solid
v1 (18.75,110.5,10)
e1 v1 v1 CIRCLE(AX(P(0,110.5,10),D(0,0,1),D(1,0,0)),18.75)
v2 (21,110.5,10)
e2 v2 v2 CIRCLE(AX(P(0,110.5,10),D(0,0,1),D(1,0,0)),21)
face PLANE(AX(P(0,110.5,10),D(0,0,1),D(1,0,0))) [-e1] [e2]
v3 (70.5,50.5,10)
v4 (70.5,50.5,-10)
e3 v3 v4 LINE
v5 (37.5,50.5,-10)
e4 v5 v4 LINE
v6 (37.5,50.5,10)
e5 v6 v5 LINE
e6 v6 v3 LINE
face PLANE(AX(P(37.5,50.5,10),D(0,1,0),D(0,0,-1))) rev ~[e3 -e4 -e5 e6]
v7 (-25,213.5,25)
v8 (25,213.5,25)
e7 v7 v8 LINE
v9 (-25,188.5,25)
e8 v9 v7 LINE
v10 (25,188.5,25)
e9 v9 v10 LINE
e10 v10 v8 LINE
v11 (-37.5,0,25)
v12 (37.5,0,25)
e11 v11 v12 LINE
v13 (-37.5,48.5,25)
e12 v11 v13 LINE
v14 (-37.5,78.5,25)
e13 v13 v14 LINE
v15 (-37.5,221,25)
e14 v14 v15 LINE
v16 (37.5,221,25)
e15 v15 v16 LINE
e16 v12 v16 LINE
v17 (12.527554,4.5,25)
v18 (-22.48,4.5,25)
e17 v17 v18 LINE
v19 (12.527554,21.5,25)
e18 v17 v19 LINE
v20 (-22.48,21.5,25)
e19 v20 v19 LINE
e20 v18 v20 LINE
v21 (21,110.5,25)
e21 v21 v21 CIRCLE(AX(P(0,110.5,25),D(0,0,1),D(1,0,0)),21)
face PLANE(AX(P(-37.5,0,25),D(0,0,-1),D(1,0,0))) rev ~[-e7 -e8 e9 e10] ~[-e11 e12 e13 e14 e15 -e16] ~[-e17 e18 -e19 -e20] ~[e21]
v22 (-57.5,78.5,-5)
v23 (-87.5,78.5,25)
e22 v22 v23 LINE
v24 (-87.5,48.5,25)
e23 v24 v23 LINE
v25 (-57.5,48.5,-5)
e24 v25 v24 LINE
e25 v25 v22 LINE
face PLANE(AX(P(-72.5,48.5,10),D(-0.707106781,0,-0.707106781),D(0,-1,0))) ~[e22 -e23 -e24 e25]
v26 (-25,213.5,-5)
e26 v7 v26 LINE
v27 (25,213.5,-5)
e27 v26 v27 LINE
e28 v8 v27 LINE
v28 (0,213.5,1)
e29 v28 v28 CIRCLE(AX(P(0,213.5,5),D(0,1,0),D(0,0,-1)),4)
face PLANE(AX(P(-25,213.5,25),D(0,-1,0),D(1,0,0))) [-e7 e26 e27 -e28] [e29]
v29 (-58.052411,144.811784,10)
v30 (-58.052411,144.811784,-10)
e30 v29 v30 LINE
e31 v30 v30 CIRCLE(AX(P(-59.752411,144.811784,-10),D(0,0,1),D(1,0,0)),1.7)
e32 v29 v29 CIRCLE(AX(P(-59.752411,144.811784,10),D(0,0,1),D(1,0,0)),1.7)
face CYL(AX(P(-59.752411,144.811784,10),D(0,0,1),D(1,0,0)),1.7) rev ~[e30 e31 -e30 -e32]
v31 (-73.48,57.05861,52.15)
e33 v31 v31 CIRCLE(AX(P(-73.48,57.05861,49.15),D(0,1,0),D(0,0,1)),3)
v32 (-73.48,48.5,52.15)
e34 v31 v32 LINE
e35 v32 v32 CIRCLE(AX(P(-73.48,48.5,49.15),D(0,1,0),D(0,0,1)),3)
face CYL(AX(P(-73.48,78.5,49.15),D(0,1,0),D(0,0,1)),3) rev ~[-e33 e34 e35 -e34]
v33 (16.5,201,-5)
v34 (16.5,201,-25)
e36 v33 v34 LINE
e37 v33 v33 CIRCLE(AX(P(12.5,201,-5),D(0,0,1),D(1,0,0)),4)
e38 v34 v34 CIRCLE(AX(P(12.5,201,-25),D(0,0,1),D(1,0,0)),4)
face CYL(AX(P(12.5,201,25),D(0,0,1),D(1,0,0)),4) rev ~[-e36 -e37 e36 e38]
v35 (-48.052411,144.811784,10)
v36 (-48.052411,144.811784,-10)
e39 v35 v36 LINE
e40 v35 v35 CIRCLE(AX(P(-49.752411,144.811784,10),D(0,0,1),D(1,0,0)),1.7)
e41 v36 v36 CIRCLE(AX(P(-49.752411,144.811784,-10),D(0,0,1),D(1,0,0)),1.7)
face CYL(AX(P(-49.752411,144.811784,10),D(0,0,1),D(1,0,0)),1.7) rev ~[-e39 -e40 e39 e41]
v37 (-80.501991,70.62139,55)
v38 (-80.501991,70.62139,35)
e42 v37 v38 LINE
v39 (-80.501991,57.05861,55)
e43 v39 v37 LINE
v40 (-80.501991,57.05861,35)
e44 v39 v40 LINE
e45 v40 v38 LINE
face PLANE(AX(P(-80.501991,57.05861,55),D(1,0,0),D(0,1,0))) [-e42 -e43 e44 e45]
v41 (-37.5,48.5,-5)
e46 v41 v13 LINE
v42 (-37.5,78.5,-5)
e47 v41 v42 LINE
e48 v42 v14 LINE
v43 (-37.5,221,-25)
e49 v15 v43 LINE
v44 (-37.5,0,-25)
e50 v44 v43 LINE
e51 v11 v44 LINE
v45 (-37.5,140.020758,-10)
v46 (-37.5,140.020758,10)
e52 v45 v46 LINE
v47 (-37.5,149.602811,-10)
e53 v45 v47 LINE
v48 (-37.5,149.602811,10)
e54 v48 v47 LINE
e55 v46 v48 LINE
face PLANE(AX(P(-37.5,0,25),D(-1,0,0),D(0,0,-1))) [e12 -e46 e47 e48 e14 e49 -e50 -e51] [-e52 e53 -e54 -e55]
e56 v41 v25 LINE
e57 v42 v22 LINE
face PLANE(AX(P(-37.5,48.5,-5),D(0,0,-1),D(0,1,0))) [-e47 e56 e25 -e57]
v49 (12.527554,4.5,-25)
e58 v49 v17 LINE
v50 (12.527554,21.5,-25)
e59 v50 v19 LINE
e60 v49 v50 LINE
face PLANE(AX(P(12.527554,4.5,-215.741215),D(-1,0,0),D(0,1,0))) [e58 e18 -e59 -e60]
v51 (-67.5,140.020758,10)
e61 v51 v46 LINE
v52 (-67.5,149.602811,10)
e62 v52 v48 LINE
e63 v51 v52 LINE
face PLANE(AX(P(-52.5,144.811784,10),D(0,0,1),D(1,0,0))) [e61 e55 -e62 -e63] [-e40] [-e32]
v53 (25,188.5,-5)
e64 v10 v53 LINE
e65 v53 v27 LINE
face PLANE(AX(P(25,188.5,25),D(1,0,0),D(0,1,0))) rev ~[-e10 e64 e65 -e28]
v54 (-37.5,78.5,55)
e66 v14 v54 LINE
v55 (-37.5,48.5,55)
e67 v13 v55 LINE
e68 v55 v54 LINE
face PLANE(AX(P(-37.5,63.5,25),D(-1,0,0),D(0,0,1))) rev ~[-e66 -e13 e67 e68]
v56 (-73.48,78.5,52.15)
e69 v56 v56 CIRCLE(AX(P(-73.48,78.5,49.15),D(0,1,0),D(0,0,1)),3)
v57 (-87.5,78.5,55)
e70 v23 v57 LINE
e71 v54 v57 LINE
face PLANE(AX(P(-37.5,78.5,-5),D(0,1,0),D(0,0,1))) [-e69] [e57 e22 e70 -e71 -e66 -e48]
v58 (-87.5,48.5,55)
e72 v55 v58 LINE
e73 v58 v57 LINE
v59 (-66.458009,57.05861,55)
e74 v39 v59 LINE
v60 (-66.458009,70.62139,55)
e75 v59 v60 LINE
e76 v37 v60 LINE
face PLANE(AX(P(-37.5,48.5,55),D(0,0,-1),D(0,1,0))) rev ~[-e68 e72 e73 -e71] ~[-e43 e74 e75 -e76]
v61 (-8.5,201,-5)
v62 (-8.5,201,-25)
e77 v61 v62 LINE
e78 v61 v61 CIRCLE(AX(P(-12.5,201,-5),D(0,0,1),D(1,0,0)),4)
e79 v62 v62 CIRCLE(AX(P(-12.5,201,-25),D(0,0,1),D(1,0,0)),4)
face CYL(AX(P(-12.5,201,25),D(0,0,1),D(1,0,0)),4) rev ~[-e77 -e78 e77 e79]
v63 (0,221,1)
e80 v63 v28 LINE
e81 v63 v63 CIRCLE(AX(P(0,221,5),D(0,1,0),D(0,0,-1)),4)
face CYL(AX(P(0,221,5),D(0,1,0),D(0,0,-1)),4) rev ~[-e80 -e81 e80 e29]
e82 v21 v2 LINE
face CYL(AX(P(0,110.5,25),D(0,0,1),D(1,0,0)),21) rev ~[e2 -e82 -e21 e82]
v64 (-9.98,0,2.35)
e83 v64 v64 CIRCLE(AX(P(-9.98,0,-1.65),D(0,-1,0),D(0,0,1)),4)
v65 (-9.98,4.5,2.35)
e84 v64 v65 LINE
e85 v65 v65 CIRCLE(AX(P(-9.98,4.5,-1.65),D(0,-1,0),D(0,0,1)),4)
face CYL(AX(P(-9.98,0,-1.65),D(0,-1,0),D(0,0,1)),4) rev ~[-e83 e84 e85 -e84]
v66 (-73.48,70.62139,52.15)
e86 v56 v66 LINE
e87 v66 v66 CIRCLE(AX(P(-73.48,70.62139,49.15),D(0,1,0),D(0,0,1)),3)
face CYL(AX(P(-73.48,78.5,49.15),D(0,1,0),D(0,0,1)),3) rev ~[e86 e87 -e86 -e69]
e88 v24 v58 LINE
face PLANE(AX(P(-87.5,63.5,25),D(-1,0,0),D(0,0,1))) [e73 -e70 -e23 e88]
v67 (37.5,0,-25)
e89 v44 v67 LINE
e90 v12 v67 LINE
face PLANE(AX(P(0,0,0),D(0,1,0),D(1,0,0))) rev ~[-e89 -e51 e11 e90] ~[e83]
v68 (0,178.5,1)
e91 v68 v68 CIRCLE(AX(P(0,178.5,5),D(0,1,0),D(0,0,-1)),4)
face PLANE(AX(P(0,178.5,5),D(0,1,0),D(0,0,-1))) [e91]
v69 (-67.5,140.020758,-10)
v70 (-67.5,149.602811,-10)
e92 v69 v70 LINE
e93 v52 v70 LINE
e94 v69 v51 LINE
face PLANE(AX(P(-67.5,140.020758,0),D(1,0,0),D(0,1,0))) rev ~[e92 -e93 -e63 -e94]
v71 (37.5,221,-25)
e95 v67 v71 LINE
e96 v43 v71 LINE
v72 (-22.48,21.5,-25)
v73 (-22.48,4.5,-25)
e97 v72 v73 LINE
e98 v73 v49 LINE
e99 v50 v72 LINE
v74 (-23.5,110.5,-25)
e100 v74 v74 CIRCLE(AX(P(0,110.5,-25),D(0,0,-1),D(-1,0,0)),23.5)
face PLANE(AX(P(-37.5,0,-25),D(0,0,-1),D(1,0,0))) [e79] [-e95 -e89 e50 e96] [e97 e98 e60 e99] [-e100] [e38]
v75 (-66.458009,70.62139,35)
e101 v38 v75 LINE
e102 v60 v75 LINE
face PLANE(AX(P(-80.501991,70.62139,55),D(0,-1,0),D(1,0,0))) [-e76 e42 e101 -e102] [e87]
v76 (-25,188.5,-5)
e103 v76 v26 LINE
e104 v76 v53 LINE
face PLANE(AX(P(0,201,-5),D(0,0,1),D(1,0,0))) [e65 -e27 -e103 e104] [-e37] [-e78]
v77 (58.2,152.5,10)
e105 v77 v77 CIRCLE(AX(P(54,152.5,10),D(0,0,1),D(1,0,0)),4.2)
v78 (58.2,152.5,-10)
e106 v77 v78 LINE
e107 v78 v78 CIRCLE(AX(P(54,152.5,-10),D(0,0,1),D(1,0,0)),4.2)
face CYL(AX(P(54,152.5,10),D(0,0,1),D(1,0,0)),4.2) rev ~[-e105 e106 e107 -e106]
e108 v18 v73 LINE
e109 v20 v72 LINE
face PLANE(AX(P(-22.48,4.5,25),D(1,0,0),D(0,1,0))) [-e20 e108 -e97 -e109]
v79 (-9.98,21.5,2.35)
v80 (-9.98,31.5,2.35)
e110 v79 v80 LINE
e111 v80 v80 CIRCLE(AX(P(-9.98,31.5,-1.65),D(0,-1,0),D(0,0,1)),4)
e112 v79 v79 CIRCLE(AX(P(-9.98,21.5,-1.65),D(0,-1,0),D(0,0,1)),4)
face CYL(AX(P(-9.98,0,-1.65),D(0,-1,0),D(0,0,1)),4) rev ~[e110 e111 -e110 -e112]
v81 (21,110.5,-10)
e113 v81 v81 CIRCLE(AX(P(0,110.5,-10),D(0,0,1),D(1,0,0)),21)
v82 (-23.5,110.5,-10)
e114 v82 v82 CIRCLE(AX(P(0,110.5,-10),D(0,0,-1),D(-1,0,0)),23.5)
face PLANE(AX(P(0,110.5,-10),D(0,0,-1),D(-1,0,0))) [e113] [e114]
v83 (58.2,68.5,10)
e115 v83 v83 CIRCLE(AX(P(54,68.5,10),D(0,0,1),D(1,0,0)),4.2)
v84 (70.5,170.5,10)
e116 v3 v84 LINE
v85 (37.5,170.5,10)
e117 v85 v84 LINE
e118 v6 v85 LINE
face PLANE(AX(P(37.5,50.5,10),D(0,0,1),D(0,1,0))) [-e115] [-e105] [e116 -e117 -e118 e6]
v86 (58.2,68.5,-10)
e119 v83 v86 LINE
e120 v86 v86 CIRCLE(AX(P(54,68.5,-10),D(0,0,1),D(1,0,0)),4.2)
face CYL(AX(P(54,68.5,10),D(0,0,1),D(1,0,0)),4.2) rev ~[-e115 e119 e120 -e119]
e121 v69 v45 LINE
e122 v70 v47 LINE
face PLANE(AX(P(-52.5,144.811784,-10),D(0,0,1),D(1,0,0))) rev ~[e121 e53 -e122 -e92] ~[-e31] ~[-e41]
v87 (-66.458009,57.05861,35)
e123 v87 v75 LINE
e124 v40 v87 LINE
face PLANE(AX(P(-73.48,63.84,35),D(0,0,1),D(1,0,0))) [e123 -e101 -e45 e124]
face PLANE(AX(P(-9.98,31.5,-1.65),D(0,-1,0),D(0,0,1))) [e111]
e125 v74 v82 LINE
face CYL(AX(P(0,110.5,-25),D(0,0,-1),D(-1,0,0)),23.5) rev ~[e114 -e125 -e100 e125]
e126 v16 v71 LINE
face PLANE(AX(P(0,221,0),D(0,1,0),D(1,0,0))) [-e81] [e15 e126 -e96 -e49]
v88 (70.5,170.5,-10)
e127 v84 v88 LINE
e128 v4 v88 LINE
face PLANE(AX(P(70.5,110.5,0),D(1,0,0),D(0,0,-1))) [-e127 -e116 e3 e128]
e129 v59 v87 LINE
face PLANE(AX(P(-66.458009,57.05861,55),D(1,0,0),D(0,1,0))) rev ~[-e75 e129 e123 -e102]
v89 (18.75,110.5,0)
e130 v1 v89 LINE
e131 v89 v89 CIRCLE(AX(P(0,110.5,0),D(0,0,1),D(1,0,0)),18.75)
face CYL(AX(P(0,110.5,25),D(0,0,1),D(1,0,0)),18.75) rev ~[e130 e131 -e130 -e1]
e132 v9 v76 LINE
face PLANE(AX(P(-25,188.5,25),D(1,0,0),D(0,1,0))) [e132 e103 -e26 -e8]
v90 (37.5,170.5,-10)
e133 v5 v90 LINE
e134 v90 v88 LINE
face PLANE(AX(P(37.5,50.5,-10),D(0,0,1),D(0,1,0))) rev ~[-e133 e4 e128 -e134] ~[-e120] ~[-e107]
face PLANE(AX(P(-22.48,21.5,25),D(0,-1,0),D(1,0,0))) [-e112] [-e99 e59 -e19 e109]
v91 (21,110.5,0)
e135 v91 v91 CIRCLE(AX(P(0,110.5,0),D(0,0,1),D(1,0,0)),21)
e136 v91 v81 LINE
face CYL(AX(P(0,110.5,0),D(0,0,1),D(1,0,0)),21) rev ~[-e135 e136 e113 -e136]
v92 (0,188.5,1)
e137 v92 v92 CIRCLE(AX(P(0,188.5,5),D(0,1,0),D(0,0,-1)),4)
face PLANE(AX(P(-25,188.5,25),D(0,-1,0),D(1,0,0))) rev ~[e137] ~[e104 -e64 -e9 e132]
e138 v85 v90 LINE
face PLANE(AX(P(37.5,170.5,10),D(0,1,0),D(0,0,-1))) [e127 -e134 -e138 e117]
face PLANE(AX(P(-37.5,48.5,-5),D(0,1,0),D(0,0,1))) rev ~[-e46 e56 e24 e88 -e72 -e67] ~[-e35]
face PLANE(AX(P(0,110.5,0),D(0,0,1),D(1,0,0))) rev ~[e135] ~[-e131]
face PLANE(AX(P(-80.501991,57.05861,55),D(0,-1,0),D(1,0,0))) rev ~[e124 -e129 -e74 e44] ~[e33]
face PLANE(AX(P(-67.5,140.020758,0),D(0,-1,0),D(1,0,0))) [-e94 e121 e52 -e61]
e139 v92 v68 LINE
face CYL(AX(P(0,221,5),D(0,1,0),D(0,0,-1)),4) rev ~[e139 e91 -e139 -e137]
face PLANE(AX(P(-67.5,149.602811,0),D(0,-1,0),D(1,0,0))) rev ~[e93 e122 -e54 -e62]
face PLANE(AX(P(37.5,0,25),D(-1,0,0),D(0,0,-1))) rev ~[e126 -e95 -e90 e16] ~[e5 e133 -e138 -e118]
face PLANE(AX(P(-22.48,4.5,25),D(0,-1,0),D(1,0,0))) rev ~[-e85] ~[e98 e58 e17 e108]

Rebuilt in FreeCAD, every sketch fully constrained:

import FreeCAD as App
import Part
import Sketcher
from FreeCAD import Vector


def edges_at(feature, points):
    """Names of the edges that pass closest to the given points."""
    edges = feature.Shape.Edges
    near = lambda p: min(range(len(edges)), key=lambda i: edges[i].distToShape(Part.Vertex(*p))[0])
    return sorted({f"Edge{near(p) + 1}" for p in points})

doc = App.newDocument("Part")
params = doc.addObject("Spreadsheet::Sheet", "Params")
for row, (alias, value) in enumerate([
    ("sketch1_width", "75 mm"),
    ("sketch1_height", "50 mm"),
    ("pad1_length", "221 mm"),
    ("sketch2_diameter", "37.5 mm"),
    ("sketch3_diameter", "42 mm"),
    ("pocket2_length", "15 mm"),
    ("sketch4_diameter", "47 mm"),
    ("pocket3_length", "15 mm"),
    ("sketch5_width", "120 mm"),
    ("sketch5_height", "20 mm"),
    ("pad2_length", "33 mm"),
    ("sketch6_width", "30 mm"),
    ("pad3_length", "20 mm"),
    ("sketch7_width", "30 mm"),
    ("sketch7_height", "60 mm"),
    ("pad4_length", "50 mm"),
    ("sketch8_diameter", "8.4 mm"),
    ("sketch9_diameter", "8 mm"),
    ("sketch10_width", "50 mm"),
    ("sketch10_height", "25 mm"),
    ("pocket6_length", "30 mm"),
    ("sketch11_diameter", "8 mm"),
    ("pocket7_length", "42.5 mm"),
    ("sketch12_width", "25 mm"),
    ("sketch12_height", "12 mm"),
    ("sketch13_width", "25 mm"),
    ("sketch13_height", "5 mm"),
    ("sketch14_height", "17 mm"),
    ("chamfer_size", "30 mm"),
    ("pocket11_length", "20 mm"),
    ("sketch16_diameter", "6 mm"),
    ("sketch17_diameter", "3.4 mm"),
    ("pocket13_length", "20 mm"),
    ("sketch18_diameter", "8 mm"),
    ("pocket14_length", "31.5 mm"),
    ("sketch19_diameter", "42 mm"),
    ("pocket15_length", "10 mm"),
], start=1):
    params.set(f"A{row}", alias)
    params.set(f"B{row}", "=" + value)
    params.setAlias(f"B{row}", alias)

body = doc.addObject("PartDesign::Body", "Body")

# Sketch on XZ plane
sketch1 = body.newObject("Sketcher::SketchObject", "Sketch")
sketch1.AttachmentSupport = (doc.getObject("XZ_Plane"), [""])
sketch1.MapMode = "FlatFace"
sketch1.addGeometry([
    Part.LineSegment(Vector(-38, -25, 0), Vector(-38, 25, 0)),
    Part.LineSegment(Vector(-38, 25, 0), Vector(38, 25, 0)),
    Part.LineSegment(Vector(38, 25, 0), Vector(38, -25, 0)),
    Part.LineSegment(Vector(38, -25, 0), Vector(-38, -25, 0)),
], False)
sketch1.addConstraint([
    Sketcher.Constraint("Coincident", 0, 2, 1, 1),
    Sketcher.Constraint("Coincident", 1, 2, 2, 1),
    Sketcher.Constraint("Coincident", 2, 2, 3, 1),
    Sketcher.Constraint("Coincident", 3, 2, 0, 1),
    Sketcher.Constraint("Vertical", 0),
    Sketcher.Constraint("Horizontal", 1),
    Sketcher.Constraint("Vertical", 2),
    Sketcher.Constraint("Horizontal", 3),
    Sketcher.Constraint("Symmetric", 0, 2, 2, 2, -1, 1),
    Sketcher.Constraint("DistanceX", 1, 1, 1, 2, 75.0),
    Sketcher.Constraint("DistanceY", 0, 1, 0, 2, 50.0),
])
sketch1.setExpression("Constraints[9]", "Params.sketch1_width")
sketch1.setExpression("Constraints[10]", "Params.sketch1_height")
pad1 = body.newObject("PartDesign::Pad", "Pad")
pad1.Profile = sketch1
pad1.setExpression("Length", "Params.pad1_length")
pad1.Reversed = True

# Sketch on XY plane
sketch2 = body.newObject("Sketcher::SketchObject", "Sketch001")
sketch2.AttachmentSupport = (doc.getObject("XY_Plane"), [""])
sketch2.MapMode = "FlatFace"
sketch2.AttachmentOffset = App.Placement(Vector(0, 0, 25), App.Rotation())
sketch2.addGeometry(Part.Circle(Vector(0, 110, 0), Vector(0, 0, 1), 19), False)
sketch2.addConstraint([
    Sketcher.Constraint("PointOnObject", 0, 3, -2),
    Sketcher.Constraint("Diameter", 0, 37.5),
    Sketcher.Constraint("DistanceY", -1, 1, 0, 3, 110.5),
])
sketch2.setExpression("Constraints[1]", "Params.sketch2_diameter")
pocket1 = body.newObject("PartDesign::Pocket", "Pocket")
pocket1.Profile = sketch2
pocket1.Type = "ThroughAll"

# Sketch on XY plane
sketch3 = body.newObject("Sketcher::SketchObject", "Sketch002")
sketch3.AttachmentSupport = (doc.getObject("XY_Plane"), [""])
sketch3.MapMode = "FlatFace"
sketch3.AttachmentOffset = App.Placement(Vector(0, 0, 25), App.Rotation())
sketch3.addGeometry(Part.Circle(Vector(0, 110, 0), Vector(0, 0, 1), 21), False)
sketch3.addConstraint([
    Sketcher.Constraint("PointOnObject", 0, 3, -2),
    Sketcher.Constraint("Diameter", 0, 42.0),
    Sketcher.Constraint("DistanceY", -1, 1, 0, 3, 110.5),
])
sketch3.setExpression("Constraints[1]", "Params.sketch3_diameter")
pocket2 = body.newObject("PartDesign::Pocket", "Pocket001")
pocket2.Profile = sketch3
pocket2.setExpression("Length", "Params.pocket2_length")

# Sketch on XY plane
sketch4 = body.newObject("Sketcher::SketchObject", "Sketch003")
sketch4.AttachmentSupport = (doc.getObject("XY_Plane"), [""])
sketch4.MapMode = "FlatFace"
sketch4.AttachmentOffset = App.Placement(Vector(0, 0, -25), App.Rotation())
sketch4.addGeometry(Part.Circle(Vector(0, 110, 0), Vector(0, 0, 1), 24), False)
sketch4.addConstraint([
    Sketcher.Constraint("PointOnObject", 0, 3, -2),
    Sketcher.Constraint("Diameter", 0, 47.0),
    Sketcher.Constraint("DistanceY", -1, 1, 0, 3, 110.5),
])
sketch4.setExpression("Constraints[1]", "Params.sketch4_diameter")
pocket3 = body.newObject("PartDesign::Pocket", "Pocket002")
pocket3.Profile = sketch4
pocket3.setExpression("Length", "Params.pocket3_length")
pocket3.Reversed = True

# Sketch on YZ plane
sketch5 = body.newObject("Sketcher::SketchObject", "Sketch004")
sketch5.AttachmentSupport = (doc.getObject("YZ_Plane"), [""])
sketch5.MapMode = "FlatFace"
sketch5.AttachmentOffset = App.Placement(Vector(0, 0, 37.5), App.Rotation())
sketch5.addGeometry([
    Part.LineSegment(Vector(170, 10, 0), Vector(50, 10, 0)),
    Part.LineSegment(Vector(50, 10, 0), Vector(50, -10, 0)),
    Part.LineSegment(Vector(50, -10, 0), Vector(170, -10, 0)),
    Part.LineSegment(Vector(170, -10, 0), Vector(170, 10, 0)),
], False)
sketch5.addConstraint([
    Sketcher.Constraint("Coincident", 0, 2, 1, 1),
    Sketcher.Constraint("Coincident", 1, 2, 2, 1),
    Sketcher.Constraint("Coincident", 2, 2, 3, 1),
    Sketcher.Constraint("Coincident", 3, 2, 0, 1),
    Sketcher.Constraint("Horizontal", 0),
    Sketcher.Constraint("Vertical", 1),
    Sketcher.Constraint("Horizontal", 2),
    Sketcher.Constraint("Vertical", 3),
    Sketcher.Constraint("DistanceX", 0, 2, 0, 1, 120.0),
    Sketcher.Constraint("DistanceY", 1, 2, 1, 1, 20.0),
    Sketcher.Constraint("DistanceY", -1, 1, 0, 2, 10.0),
    Sketcher.Constraint("DistanceX", -1, 1, 0, 2, 50.5),
])
sketch5.setExpression("Constraints[8]", "Params.sketch5_width")
sketch5.setExpression("Constraints[9]", "Params.sketch5_height")
pad2 = body.newObject("PartDesign::Pad", "Pad001")
pad2.Profile = sketch5
pad2.setExpression("Length", "Params.pad2_length")

# Sketch on XY plane
sketch6 = body.newObject("Sketcher::SketchObject", "Sketch005")
sketch6.AttachmentSupport = (doc.getObject("XY_Plane"), [""])
sketch6.MapMode = "FlatFace"
sketch6.addGeometry([
    Part.LineSegment(Vector(-68, 150, 0), Vector(-68, 140, 0)),
    Part.LineSegment(Vector(-68, 140, 0), Vector(-38, 140, 0)),
    Part.LineSegment(Vector(-38, 140, 0), Vector(-38, 150, 0)),
    Part.LineSegment(Vector(-38, 150, 0), Vector(-68, 150, 0)),
], False)
sketch6.addConstraint([
    Sketcher.Constraint("Coincident", 0, 2, 1, 1),
    Sketcher.Constraint("Coincident", 1, 2, 2, 1),
    Sketcher.Constraint("Coincident", 2, 2, 3, 1),
    Sketcher.Constraint("Coincident", 3, 2, 0, 1),
    Sketcher.Constraint("Vertical", 0),
    Sketcher.Constraint("Horizontal", 1),
    Sketcher.Constraint("Vertical", 2),
    Sketcher.Constraint("Horizontal", 3),
    Sketcher.Constraint("DistanceX", 1, 1, 1, 2, 30.0),
    Sketcher.Constraint("DistanceX", 0, 2, -1, 1, 67.5),
    Sketcher.Constraint("DistanceY", 0, 2, 0, 1, 9.582053),
    Sketcher.Constraint("DistanceY", -1, 1, 2, 2, 149.602811),
])
sketch6.setExpression("Constraints[8]", "Params.sketch6_width")
pad3 = body.newObject("PartDesign::Pad", "Pad002")
pad3.Profile = sketch6
pad3.setExpression("Length", "Params.pad3_length")
pad3.Midplane = True

# Sketch on YZ plane
sketch7 = body.newObject("Sketcher::SketchObject", "Sketch006")
sketch7.AttachmentSupport = (doc.getObject("YZ_Plane"), [""])
sketch7.MapMode = "FlatFace"
sketch7.AttachmentOffset = App.Placement(Vector(0, 0, -37.5), App.Rotation())
sketch7.addGeometry([
    Part.LineSegment(Vector(78, -5, 0), Vector(48, -5, 0)),
    Part.LineSegment(Vector(48, -5, 0), Vector(48, 55, 0)),
    Part.LineSegment(Vector(48, 55, 0), Vector(78, 55, 0)),
    Part.LineSegment(Vector(78, 55, 0), Vector(78, -5, 0)),
], False)
sketch7.addConstraint([
    Sketcher.Constraint("Coincident", 0, 2, 1, 1),
    Sketcher.Constraint("Coincident", 1, 2, 2, 1),
    Sketcher.Constraint("Coincident", 2, 2, 3, 1),
    Sketcher.Constraint("Coincident", 3, 2, 0, 1),
    Sketcher.Constraint("Horizontal", 0),
    Sketcher.Constraint("Vertical", 1),
    Sketcher.Constraint("Horizontal", 2),
    Sketcher.Constraint("Vertical", 3),
    Sketcher.Constraint("DistanceX", 0, 2, 0, 1, 30.0),
    Sketcher.Constraint("DistanceY", 1, 1, 1, 2, 60.0),
    Sketcher.Constraint("DistanceY", 0, 2, -1, 1, 5.0),
    Sketcher.Constraint("DistanceX", -1, 1, 0, 2, 48.5),
])
sketch7.setExpression("Constraints[8]", "Params.sketch7_width")
sketch7.setExpression("Constraints[9]", "Params.sketch7_height")
pad4 = body.newObject("PartDesign::Pad", "Pad003")
pad4.Profile = sketch7
pad4.setExpression("Length", "Params.pad4_length")
pad4.Reversed = True

# Sketch on XY plane
sketch8 = body.newObject("Sketcher::SketchObject", "Sketch007")
sketch8.AttachmentSupport = (doc.getObject("XY_Plane"), [""])
sketch8.MapMode = "FlatFace"
sketch8.AttachmentOffset = App.Placement(Vector(0, 0, 10), App.Rotation())
sketch8.addGeometry([
    Part.Circle(Vector(54, 152.5, 0), Vector(0, 0, 1), 4.2),
    Part.Circle(Vector(54, 68.5, 0), Vector(0, 0, 1), 4.2),
], False)
sketch8.addConstraint([
    Sketcher.Constraint("Equal", 0, 1),
    Sketcher.Constraint("Vertical", 0, 3, 1, 3),
    Sketcher.Constraint("Diameter", 0, 8.4),
    Sketcher.Constraint("DistanceX", -1, 1, 0, 3, 54.0),
    Sketcher.Constraint("DistanceY", 1, 3, 0, 3, 84.0),
    Sketcher.Constraint("DistanceY", -1, 1, 0, 3, 152.5),
])
sketch8.setExpression("Constraints[2]", "Params.sketch8_diameter")
pocket4 = body.newObject("PartDesign::Pocket", "Pocket003")
pocket4.Profile = sketch8
pocket4.Type = "ThroughAll"

# Sketch on XY plane
sketch9 = body.newObject("Sketcher::SketchObject", "Sketch008")
sketch9.AttachmentSupport = (doc.getObject("XY_Plane"), [""])
sketch9.MapMode = "FlatFace"
sketch9.AttachmentOffset = App.Placement(Vector(0, 0, 25), App.Rotation())
sketch9.addGeometry([
    Part.Circle(Vector(-12.5, 201, 0), Vector(0, 0, 1), 4),
    Part.Circle(Vector(12.5, 201, 0), Vector(0, 0, 1), 4),
], False)
sketch9.addConstraint([
    Sketcher.Constraint("Equal", 0, 1),
    Sketcher.Constraint("Symmetric", 0, 3, 1, 3, -2),
    Sketcher.Constraint("Diameter", 0, 8.0),
    Sketcher.Constraint("DistanceY", -1, 1, 0, 3, 201.0),
    Sketcher.Constraint("DistanceX", 0, 3, 1, 3, 25.0),
])
sketch9.setExpression("Constraints[2]", "Params.sketch9_diameter")
pocket5 = body.newObject("PartDesign::Pocket", "Pocket004")
pocket5.Profile = sketch9
pocket5.Type = "ThroughAll"

# Sketch on XY plane
sketch10 = body.newObject("Sketcher::SketchObject", "Sketch009")
sketch10.AttachmentSupport = (doc.getObject("XY_Plane"), [""])
sketch10.MapMode = "FlatFace"
sketch10.AttachmentOffset = App.Placement(Vector(0, 0, 25), App.Rotation())
sketch10.addGeometry([
    Part.LineSegment(Vector(-25, 214, 0), Vector(-25, 188, 0)),
    Part.LineSegment(Vector(-25, 188, 0), Vector(25, 188, 0)),
    Part.LineSegment(Vector(25, 188, 0), Vector(25, 214, 0)),
    Part.LineSegment(Vector(25, 214, 0), Vector(-25, 214, 0)),
], False)
sketch10.addConstraint([
    Sketcher.Constraint("Coincident", 0, 2, 1, 1),
    Sketcher.Constraint("Coincident", 1, 2, 2, 1),
    Sketcher.Constraint("Coincident", 2, 2, 3, 1),
    Sketcher.Constraint("Coincident", 3, 2, 0, 1),
    Sketcher.Constraint("Vertical", 0),
    Sketcher.Constraint("Horizontal", 1),
    Sketcher.Constraint("Vertical", 2),
    Sketcher.Constraint("Horizontal", 3),
    Sketcher.Constraint("DistanceX", 1, 1, 1, 2, 50.0),
    Sketcher.Constraint("DistanceY", 0, 2, 0, 1, 25.0),
    Sketcher.Constraint("DistanceX", 0, 2, -1, 1, 25.0),
    Sketcher.Constraint("DistanceY", -1, 1, 0, 2, 188.5),
])
sketch10.setExpression("Constraints[8]", "Params.sketch10_width")
sketch10.setExpression("Constraints[9]", "Params.sketch10_height")
pocket6 = body.newObject("PartDesign::Pocket", "Pocket005")
pocket6.Profile = sketch10
pocket6.setExpression("Length", "Params.pocket6_length")

# Sketch on XZ plane
sketch11 = body.newObject("Sketcher::SketchObject", "Sketch010")
sketch11.AttachmentSupport = (doc.getObject("XZ_Plane"), [""])
sketch11.MapMode = "FlatFace"
sketch11.AttachmentOffset = App.Placement(Vector(0, 0, -221), App.Rotation())
sketch11.addGeometry(Part.Circle(Vector(0, 5, 0), Vector(0, 0, 1), 4), False)
sketch11.addConstraint([
    Sketcher.Constraint("PointOnObject", 0, 3, -2),
    Sketcher.Constraint("Diameter", 0, 8.0),
    Sketcher.Constraint("DistanceY", -1, 1, 0, 3, 5.0),
])
sketch11.setExpression("Constraints[1]", "Params.sketch11_diameter")
pocket7 = body.newObject("PartDesign::Pocket", "Pocket006")
pocket7.Profile = sketch11
pocket7.setExpression("Length", "Params.pocket7_length")
pocket7.Reversed = True

# Sketch on XY plane
sketch12 = body.newObject("Sketcher::SketchObject", "Sketch011")
sketch12.AttachmentSupport = (doc.getObject("XY_Plane"), [""])
sketch12.MapMode = "FlatFace"
sketch12.AttachmentOffset = App.Placement(Vector(0, 0, 25), App.Rotation())
sketch12.addGeometry([
    Part.LineSegment(Vector(-22, 16, 0), Vector(-22, 4, 0)),
    Part.LineSegment(Vector(-22, 4, 0), Vector(3, 4, 0)),
    Part.LineSegment(Vector(3, 4, 0), Vector(3, 16, 0)),
    Part.LineSegment(Vector(3, 16, 0), Vector(-22, 16, 0)),
], False)
sketch12.addConstraint([
    Sketcher.Constraint("Coincident", 0, 2, 1, 1),
    Sketcher.Constraint("Coincident", 1, 2, 2, 1),
    Sketcher.Constraint("Coincident", 2, 2, 3, 1),
    Sketcher.Constraint("Coincident", 3, 2, 0, 1),
    Sketcher.Constraint("Vertical", 0),
    Sketcher.Constraint("Horizontal", 1),
    Sketcher.Constraint("Vertical", 2),
    Sketcher.Constraint("Horizontal", 3),
    Sketcher.Constraint("DistanceX", 1, 1, 1, 2, 25.0),
    Sketcher.Constraint("DistanceY", 0, 2, 0, 1, 12.0),
    Sketcher.Constraint("DistanceY", -1, 1, 0, 2, 4.5),
    Sketcher.Constraint("DistanceX", 0, 2, -1, 1, 22.48),
])
sketch12.setExpression("Constraints[8]", "Params.sketch12_width")
sketch12.setExpression("Constraints[9]", "Params.sketch12_height")
pocket8 = body.newObject("PartDesign::Pocket", "Pocket007")
pocket8.Profile = sketch12
pocket8.Type = "ThroughAll"

# Sketch on XY plane
sketch13 = body.newObject("Sketcher::SketchObject", "Sketch012")
sketch13.AttachmentSupport = (doc.getObject("XY_Plane"), [""])
sketch13.MapMode = "FlatFace"
sketch13.AttachmentOffset = App.Placement(Vector(0, 0, 25), App.Rotation())
sketch13.addGeometry([
    Part.LineSegment(Vector(-22, 22, 0), Vector(-22, 16, 0)),
    Part.LineSegment(Vector(-22, 16, 0), Vector(3, 16, 0)),
    Part.LineSegment(Vector(3, 16, 0), Vector(3, 22, 0)),
    Part.LineSegment(Vector(3, 22, 0), Vector(-22, 22, 0)),
], False)
sketch13.addConstraint([
    Sketcher.Constraint("Coincident", 0, 2, 1, 1),
    Sketcher.Constraint("Coincident", 1, 2, 2, 1),
    Sketcher.Constraint("Coincident", 2, 2, 3, 1),
    Sketcher.Constraint("Coincident", 3, 2, 0, 1),
    Sketcher.Constraint("Vertical", 0),
    Sketcher.Constraint("Horizontal", 1),
    Sketcher.Constraint("Vertical", 2),
    Sketcher.Constraint("Horizontal", 3),
    Sketcher.Constraint("DistanceX", 1, 1, 1, 2, 25.0),
    Sketcher.Constraint("DistanceY", 0, 2, 0, 1, 5.0),
    Sketcher.Constraint("DistanceY", -1, 1, 0, 2, 16.5),
    Sketcher.Constraint("DistanceX", 0, 2, -1, 1, 22.48),
])
sketch13.setExpression("Constraints[8]", "Params.sketch13_width")
sketch13.setExpression("Constraints[9]", "Params.sketch13_height")
pocket9 = body.newObject("PartDesign::Pocket", "Pocket008")
pocket9.Profile = sketch13
pocket9.Type = "ThroughAll"

# Sketch on XY plane
sketch14 = body.newObject("Sketcher::SketchObject", "Sketch013")
sketch14.AttachmentSupport = (doc.getObject("XY_Plane"), [""])
sketch14.MapMode = "FlatFace"
sketch14.AttachmentOffset = App.Placement(Vector(0, 0, 25), App.Rotation())
sketch14.addGeometry([
    Part.LineSegment(Vector(3, 22, 0), Vector(3, 4, 0)),
    Part.LineSegment(Vector(3, 4, 0), Vector(13, 4, 0)),
    Part.LineSegment(Vector(13, 4, 0), Vector(13, 22, 0)),
    Part.LineSegment(Vector(13, 22, 0), Vector(3, 22, 0)),
], False)
sketch14.addConstraint([
    Sketcher.Constraint("Coincident", 0, 2, 1, 1),
    Sketcher.Constraint("Coincident", 1, 2, 2, 1),
    Sketcher.Constraint("Coincident", 2, 2, 3, 1),
    Sketcher.Constraint("Coincident", 3, 2, 0, 1),
    Sketcher.Constraint("Vertical", 0),
    Sketcher.Constraint("Horizontal", 1),
    Sketcher.Constraint("Vertical", 2),
    Sketcher.Constraint("Horizontal", 3),
    Sketcher.Constraint("DistanceY", 0, 2, 0, 1, 17.0),
    Sketcher.Constraint("DistanceY", -1, 1, 0, 2, 4.5),
    Sketcher.Constraint("DistanceX", -1, 1, 0, 2, 2.52),
    Sketcher.Constraint("DistanceX", 1, 1, 1, 2, 10.007554),
])
sketch14.setExpression("Constraints[8]", "Params.sketch14_height")
pocket10 = body.newObject("PartDesign::Pocket", "Pocket009")
pocket10.Profile = sketch14
pocket10.Type = "ThroughAll"
pocket10.Midplane = True
doc.recompute()

chamfer = body.newObject("PartDesign::Chamfer", "Chamfer")
chamfer.Base = (pocket10, edges_at(pocket10, [(-87.5, 63.5, -5)]))
chamfer.setExpression("Size", "Params.chamfer_size")

# Sketch on XY plane
sketch15 = body.newObject("Sketcher::SketchObject", "Sketch014")
sketch15.AttachmentSupport = (doc.getObject("XY_Plane"), [""])
sketch15.MapMode = "FlatFace"
sketch15.AttachmentOffset = App.Placement(Vector(0, 0, 55), App.Rotation())
sketch15.addGeometry([
    Part.LineSegment(Vector(-81, 71, 0), Vector(-81, 57, 0)),
    Part.LineSegment(Vector(-81, 57, 0), Vector(-66, 57, 0)),
    Part.LineSegment(Vector(-66, 57, 0), Vector(-66, 71, 0)),
    Part.LineSegment(Vector(-66, 71, 0), Vector(-81, 71, 0)),
], False)
sketch15.addConstraint([
    Sketcher.Constraint("Coincident", 0, 2, 1, 1),
    Sketcher.Constraint("Coincident", 1, 2, 2, 1),
    Sketcher.Constraint("Coincident", 2, 2, 3, 1),
    Sketcher.Constraint("Coincident", 3, 2, 0, 1),
    Sketcher.Constraint("Vertical", 0),
    Sketcher.Constraint("Horizontal", 1),
    Sketcher.Constraint("Vertical", 2),
    Sketcher.Constraint("Horizontal", 3),
    Sketcher.Constraint("DistanceX", 1, 1, 1, 2, 14.043981),
    Sketcher.Constraint("DistanceY", 0, 2, 0, 1, 13.56278),
    Sketcher.Constraint("DistanceX", 0, 2, -1, 1, 80.501991),
    Sketcher.Constraint("DistanceY", -1, 1, 0, 2, 57.05861),
])
pocket11 = body.newObject("PartDesign::Pocket", "Pocket010")
pocket11.Profile = sketch15
pocket11.setExpression("Length", "Params.pocket11_length")

# Sketch on XZ plane
sketch16 = body.newObject("Sketcher::SketchObject", "Sketch015")
sketch16.AttachmentSupport = (doc.getObject("XZ_Plane"), [""])
sketch16.MapMode = "FlatFace"
sketch16.AttachmentOffset = App.Placement(Vector(0, 0, -78.5), App.Rotation())
sketch16.addGeometry(Part.Circle(Vector(-73.5, 49.1, 0), Vector(0, 0, 1), 3), False)
sketch16.addConstraint([
    Sketcher.Constraint("Diameter", 0, 6.0),
    Sketcher.Constraint("DistanceX", 0, 3, -1, 1, 73.48),
    Sketcher.Constraint("DistanceY", -1, 1, 0, 3, 49.15),
])
sketch16.setExpression("Constraints[0]", "Params.sketch16_diameter")
pocket12 = body.newObject("PartDesign::Pocket", "Pocket011")
pocket12.Profile = sketch16
pocket12.Type = "ThroughAll"
pocket12.Reversed = True

# Sketch on XY plane
sketch17 = body.newObject("Sketcher::SketchObject", "Sketch016")
sketch17.AttachmentSupport = (doc.getObject("XY_Plane"), [""])
sketch17.MapMode = "FlatFace"
sketch17.AttachmentOffset = App.Placement(Vector(0, 0, 10), App.Rotation())
sketch17.addGeometry([
    Part.Circle(Vector(-59.8, 144.8, 0), Vector(0, 0, 1), 1.7),
    Part.Circle(Vector(-49.8, 144.8, 0), Vector(0, 0, 1), 1.7),
], False)
sketch17.addConstraint([
    Sketcher.Constraint("Equal", 0, 1),
    Sketcher.Constraint("Horizontal", 0, 3, 1, 3),
    Sketcher.Constraint("Diameter", 0, 3.4),
    Sketcher.Constraint("DistanceX", 0, 3, 1, 3, 10.0),
    Sketcher.Constraint("DistanceX", 0, 3, -1, 1, 59.752411),
    Sketcher.Constraint("DistanceY", -1, 1, 0, 3, 144.811784),
])
sketch17.setExpression("Constraints[2]", "Params.sketch17_diameter")
pocket13 = body.newObject("PartDesign::Pocket", "Pocket012")
pocket13.Profile = sketch17
pocket13.setExpression("Length", "Params.pocket13_length")

# Sketch on XZ plane
sketch18 = body.newObject("Sketcher::SketchObject", "Sketch017")
sketch18.AttachmentSupport = (doc.getObject("XZ_Plane"), [""])
sketch18.MapMode = "FlatFace"
sketch18.addGeometry(Part.Circle(Vector(-10, -1.6, 0), Vector(0, 0, 1), 4), False)
sketch18.addConstraint([
    Sketcher.Constraint("Diameter", 0, 8.0),
    Sketcher.Constraint("DistanceX", 0, 3, -1, 1, 9.98),
    Sketcher.Constraint("DistanceY", 0, 3, -1, 1, 1.65),
])
sketch18.setExpression("Constraints[0]", "Params.sketch18_diameter")
pocket14 = body.newObject("PartDesign::Pocket", "Pocket013")
pocket14.Profile = sketch18
pocket14.setExpression("Length", "Params.pocket14_length")

# Sketch on XY plane
sketch19 = body.newObject("Sketcher::SketchObject", "Sketch018")
sketch19.AttachmentSupport = (doc.getObject("XY_Plane"), [""])
sketch19.MapMode = "FlatFace"
sketch19.addGeometry(Part.Circle(Vector(0, 110, 0), Vector(0, 0, 1), 21), False)
sketch19.addConstraint([
    Sketcher.Constraint("PointOnObject", 0, 3, -2),
    Sketcher.Constraint("Diameter", 0, 42.0),
    Sketcher.Constraint("DistanceY", -1, 1, 0, 3, 110.5),
])
sketch19.setExpression("Constraints[1]", "Params.sketch19_diameter")
pocket15 = body.newObject("PartDesign::Pocket", "Pocket014")
pocket15.Profile = sketch19
pocket15.setExpression("Length", "Params.pocket15_length")

doc.recompute()
